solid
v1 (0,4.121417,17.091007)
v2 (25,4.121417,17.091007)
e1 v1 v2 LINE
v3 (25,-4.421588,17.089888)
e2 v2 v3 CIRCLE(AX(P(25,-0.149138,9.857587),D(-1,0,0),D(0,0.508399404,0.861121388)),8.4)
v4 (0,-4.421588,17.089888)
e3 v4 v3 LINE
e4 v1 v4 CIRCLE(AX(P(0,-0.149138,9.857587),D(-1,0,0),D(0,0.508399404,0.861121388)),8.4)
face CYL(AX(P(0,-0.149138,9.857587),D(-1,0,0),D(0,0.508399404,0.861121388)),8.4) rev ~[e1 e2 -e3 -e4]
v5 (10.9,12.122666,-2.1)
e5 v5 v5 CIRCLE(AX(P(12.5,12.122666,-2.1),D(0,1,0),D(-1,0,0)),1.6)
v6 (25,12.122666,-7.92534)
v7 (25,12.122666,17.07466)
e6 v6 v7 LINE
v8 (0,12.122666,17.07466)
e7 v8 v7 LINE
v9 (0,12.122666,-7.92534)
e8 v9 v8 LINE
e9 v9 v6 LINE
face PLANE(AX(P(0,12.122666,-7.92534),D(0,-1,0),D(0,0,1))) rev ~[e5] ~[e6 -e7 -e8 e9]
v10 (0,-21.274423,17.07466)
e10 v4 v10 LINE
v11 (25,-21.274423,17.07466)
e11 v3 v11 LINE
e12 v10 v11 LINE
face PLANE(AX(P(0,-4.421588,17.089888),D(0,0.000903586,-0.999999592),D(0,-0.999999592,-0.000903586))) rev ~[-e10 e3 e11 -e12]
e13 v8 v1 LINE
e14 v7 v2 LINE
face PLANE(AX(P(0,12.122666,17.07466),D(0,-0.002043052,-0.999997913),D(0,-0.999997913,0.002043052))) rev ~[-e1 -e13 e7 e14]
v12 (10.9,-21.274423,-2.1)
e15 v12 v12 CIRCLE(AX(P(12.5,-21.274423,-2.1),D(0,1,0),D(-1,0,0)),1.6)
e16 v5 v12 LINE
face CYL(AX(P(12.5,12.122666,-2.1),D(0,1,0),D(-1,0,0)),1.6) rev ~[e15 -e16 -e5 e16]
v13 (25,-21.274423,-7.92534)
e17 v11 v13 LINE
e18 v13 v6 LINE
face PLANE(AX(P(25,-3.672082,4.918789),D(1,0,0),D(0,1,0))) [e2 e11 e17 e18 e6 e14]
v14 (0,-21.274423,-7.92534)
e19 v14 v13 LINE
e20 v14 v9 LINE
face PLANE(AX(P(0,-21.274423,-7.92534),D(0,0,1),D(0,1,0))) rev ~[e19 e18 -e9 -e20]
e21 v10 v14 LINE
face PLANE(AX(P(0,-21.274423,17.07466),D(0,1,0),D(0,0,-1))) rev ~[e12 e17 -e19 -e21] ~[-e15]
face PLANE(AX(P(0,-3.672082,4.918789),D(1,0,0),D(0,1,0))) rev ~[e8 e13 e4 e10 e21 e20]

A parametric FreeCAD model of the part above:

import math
import FreeCAD as App
import Part
import Sketcher

doc = App.newDocument("Part")
body = doc.addObject("PartDesign::Body", "Body")

# Sketch on YZ plane
sketch1 = doc.addObject("Sketcher::SketchObject", "Sketch")
body.addObject(sketch1)
sketch1.AttachmentSupport = (doc.YZ_Plane, [""])
sketch1.MapMode = "FlatFace"
sketch1.addGeometry([
    Part.ArcOfCircle(Part.Circle(App.Vector(0, 10, 0), App.Vector(0, 0, 1), 8), math.radians(121), math.radians(419)),  # 0
    Part.LineSegment(App.Vector(-4, 17, 0), App.Vector(-21, 17, 0)),  # 1
    Part.LineSegment(App.Vector(-21, 17, 0), App.Vector(-21, -8, 0)),  # 2
    Part.LineSegment(App.Vector(-21, -8, 0), App.Vector(12, -8, 0)),  # 3
    Part.LineSegment(App.Vector(12, -8, 0), App.Vector(12, 17, 0)),  # 4
    Part.LineSegment(App.Vector(12, 17, 0), App.Vector(4, 17, 0)),  # 5
], False)
sketch1.addConstraint([
    Sketcher.Constraint("Coincident", 0, 1, 1, 1),
    Sketcher.Constraint("Coincident", 1, 2, 2, 1),
    Sketcher.Constraint("Coincident", 2, 2, 3, 1),
    Sketcher.Constraint("Coincident", 3, 2, 4, 1),
    Sketcher.Constraint("Coincident", 4, 2, 5, 1),
    Sketcher.Constraint("Coincident", 5, 2, 0, 2),
    Sketcher.Constraint("Vertical", 2),
    Sketcher.Constraint("Horizontal", 3),
    Sketcher.Constraint("Vertical", 4),
    Sketcher.Constraint("Horizontal", 1, 2, 4, 2),
    Sketcher.Constraint("Radius", 0, 8.4),
    Sketcher.Constraint("DistanceY", 2, 2, 2, 1, 25.0),
    Sketcher.Constraint("DistanceX", 3, 1, 3, 2, 33.397089),
    Sketcher.Constraint("DistanceY", 0, 3, 0, 1, 7.232301),
    Sketcher.Constraint("Distance", 1, 16.852842),
    Sketcher.Constraint("DistanceX", 0, 3, -1, 1, 0.149138),
    Sketcher.Constraint("DistanceY", -1, 1, 0, 1, 17.089888),
    Sketcher.Constraint("DistanceY", -1, 1, 1, 2, 17.07466),
    Sketcher.Constraint("DistanceX", 5, 2, 4, 2, 8.001249),
])
pad1 = doc.addObject("PartDesign::Pad", "Pad")
body.addObject(pad1)
pad1.Profile = sketch1
pad1.Length = 25

# Sketch on XZ plane
sketch2 = doc.addObject("Sketcher::SketchObject", "Sketch001")
body.addObject(sketch2)
sketch2.AttachmentSupport = (doc.XZ_Plane, [""])
sketch2.MapMode = "FlatFace"
sketch2.AttachmentOffset = App.Placement(App.Vector(0, 0, -12.122666), App.Rotation())
sketch2.addGeometry(Part.Circle(App.Vector(12.5, -2.1, 0), App.Vector(0, 0, 1), 1.6), False)
sketch2.addConstraint([
    Sketcher.Constraint("Diameter", 0, 3.2),
    Sketcher.Constraint("DistanceX", -1, 1, 0, 3, 12.5),
    Sketcher.Constraint("DistanceY", 0, 3, -1, 1, 2.1),
])
pocket1 = doc.addObject("PartDesign::Pocket", "Pocket")
body.addObject(pocket1)
pocket1.Profile = sketch2
pocket1.Length = 39.6
pocket1.Reversed = True

doc.recompute()
